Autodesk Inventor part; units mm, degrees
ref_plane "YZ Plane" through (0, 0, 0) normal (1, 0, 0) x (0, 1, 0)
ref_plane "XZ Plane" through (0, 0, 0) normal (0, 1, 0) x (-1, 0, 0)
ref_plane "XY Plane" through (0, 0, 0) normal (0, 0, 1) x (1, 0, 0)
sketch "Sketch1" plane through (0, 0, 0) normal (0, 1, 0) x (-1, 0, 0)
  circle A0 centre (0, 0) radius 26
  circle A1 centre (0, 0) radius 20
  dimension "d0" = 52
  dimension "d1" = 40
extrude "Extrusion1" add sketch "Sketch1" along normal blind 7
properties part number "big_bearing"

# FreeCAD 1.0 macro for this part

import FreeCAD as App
import Part
import Sketcher

V = App.Vector

doc = App.newDocument("Part")
body = doc.addObject("PartDesign::Body", "Body")

sketch1 = body.newObject("Sketcher::SketchObject", "Sketch")
sketch1.AttachmentSupport = (doc.getObject("XZ_Plane"), [""])
sketch1.MapMode = "FlatFace"
sketch1.addGeometry([
    Part.Circle(V(0, 0, 0), V(0, 0, 1), 26),
    Part.Circle(V(0, 0, 0), V(0, 0, 1), 20),
], False)
sketch1.addConstraint([
    Sketcher.Constraint("Coincident", 0, 3, -1, 1),
    Sketcher.Constraint("Coincident", 1, 3, -1, 1),
    Sketcher.Constraint("Diameter", 0, 52.0),
    Sketcher.Constraint("Diameter", 1, 40.0),
])
pad1 = body.newObject("PartDesign::Pad", "Pad")
pad1.Profile = sketch1
pad1.Length = 7
pad1.Reversed = True

doc.recompute()
